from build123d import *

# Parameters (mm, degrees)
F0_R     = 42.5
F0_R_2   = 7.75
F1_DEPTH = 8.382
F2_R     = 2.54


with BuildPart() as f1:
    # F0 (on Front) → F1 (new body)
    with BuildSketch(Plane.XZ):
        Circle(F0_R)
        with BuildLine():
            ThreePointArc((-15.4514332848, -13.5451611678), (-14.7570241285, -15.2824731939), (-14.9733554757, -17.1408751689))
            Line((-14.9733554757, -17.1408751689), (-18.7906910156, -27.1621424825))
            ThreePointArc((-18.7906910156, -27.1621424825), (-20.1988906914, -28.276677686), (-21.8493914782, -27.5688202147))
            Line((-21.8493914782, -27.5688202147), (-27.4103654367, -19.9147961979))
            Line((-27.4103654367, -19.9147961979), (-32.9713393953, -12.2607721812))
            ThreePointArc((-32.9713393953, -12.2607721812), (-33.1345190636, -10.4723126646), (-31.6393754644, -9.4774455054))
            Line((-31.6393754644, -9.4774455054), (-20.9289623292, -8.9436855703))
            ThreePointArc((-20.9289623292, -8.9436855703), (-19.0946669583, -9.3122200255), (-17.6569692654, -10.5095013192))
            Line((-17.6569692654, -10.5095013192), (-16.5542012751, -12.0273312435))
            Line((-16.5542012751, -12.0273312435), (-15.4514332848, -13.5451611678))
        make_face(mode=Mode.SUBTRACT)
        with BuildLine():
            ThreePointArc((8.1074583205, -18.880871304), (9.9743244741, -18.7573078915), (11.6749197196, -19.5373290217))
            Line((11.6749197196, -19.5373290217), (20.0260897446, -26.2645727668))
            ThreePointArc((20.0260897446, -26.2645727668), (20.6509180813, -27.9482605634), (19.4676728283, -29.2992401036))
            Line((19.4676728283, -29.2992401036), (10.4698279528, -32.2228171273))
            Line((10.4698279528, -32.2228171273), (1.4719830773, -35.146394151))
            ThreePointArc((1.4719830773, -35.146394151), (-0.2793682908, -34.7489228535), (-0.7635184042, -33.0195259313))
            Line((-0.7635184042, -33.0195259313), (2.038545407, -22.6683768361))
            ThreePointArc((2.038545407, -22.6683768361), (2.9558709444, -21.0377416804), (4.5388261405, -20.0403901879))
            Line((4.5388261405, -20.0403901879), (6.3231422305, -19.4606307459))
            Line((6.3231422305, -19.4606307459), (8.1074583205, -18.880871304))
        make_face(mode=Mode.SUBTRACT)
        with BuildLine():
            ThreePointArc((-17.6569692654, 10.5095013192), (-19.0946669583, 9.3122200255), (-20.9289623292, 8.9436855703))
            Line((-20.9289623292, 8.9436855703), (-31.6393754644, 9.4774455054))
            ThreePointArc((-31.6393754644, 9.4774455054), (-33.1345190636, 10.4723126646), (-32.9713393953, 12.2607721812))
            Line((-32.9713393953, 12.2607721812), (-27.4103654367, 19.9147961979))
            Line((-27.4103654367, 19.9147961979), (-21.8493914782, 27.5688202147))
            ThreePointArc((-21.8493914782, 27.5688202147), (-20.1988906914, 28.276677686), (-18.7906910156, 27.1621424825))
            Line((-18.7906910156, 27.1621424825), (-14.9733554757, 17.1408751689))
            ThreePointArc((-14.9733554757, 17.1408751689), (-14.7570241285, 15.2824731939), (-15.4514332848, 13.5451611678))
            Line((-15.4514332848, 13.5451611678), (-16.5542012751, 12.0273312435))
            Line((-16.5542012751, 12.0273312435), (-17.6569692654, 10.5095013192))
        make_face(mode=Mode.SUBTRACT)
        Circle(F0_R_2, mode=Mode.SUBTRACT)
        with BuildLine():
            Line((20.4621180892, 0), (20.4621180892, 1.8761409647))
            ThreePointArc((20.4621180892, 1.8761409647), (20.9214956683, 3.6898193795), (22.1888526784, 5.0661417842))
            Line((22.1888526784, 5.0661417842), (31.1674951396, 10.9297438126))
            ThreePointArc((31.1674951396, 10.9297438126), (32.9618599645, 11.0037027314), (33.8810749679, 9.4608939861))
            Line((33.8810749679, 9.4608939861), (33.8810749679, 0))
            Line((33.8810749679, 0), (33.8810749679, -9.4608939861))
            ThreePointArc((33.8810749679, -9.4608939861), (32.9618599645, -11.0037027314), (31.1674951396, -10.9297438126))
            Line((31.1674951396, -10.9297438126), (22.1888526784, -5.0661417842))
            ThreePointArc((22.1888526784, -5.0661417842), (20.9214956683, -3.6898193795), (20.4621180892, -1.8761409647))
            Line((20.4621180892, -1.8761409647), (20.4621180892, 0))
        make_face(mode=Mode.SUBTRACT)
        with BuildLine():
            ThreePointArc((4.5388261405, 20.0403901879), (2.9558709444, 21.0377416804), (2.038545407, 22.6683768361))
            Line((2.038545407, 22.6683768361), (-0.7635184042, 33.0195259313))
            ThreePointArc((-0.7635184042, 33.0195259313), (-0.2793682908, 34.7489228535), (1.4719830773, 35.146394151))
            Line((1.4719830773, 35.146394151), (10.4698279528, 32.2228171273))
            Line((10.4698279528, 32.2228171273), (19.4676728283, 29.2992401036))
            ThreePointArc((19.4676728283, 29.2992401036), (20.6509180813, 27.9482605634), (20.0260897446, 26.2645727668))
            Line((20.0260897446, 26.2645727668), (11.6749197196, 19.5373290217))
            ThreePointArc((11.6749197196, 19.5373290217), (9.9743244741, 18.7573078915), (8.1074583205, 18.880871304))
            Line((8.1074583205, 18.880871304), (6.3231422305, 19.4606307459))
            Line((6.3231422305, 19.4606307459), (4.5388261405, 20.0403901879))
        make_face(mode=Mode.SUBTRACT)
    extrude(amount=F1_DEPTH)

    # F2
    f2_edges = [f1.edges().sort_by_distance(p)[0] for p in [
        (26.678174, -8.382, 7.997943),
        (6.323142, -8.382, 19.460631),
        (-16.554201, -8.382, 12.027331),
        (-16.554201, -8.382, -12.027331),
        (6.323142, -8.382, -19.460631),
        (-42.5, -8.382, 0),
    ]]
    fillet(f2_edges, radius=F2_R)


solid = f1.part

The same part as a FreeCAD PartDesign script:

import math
import FreeCAD as App
import Part
import Sketcher
from FreeCAD import Vector
Q = App.Units.Quantity


def edges_at(feature, points):
    """Names of the edges that pass closest to the given points."""
    edges = feature.Shape.Edges
    near = lambda p: min(range(len(edges)), key=lambda i: edges[i].distToShape(Part.Vertex(*p))[0])
    return sorted({f"Edge{near(p) + 1}" for p in points})

doc = App.newDocument("Part")
params = doc.addObject("Spreadsheet::Sheet", "Params")
for row, (alias, value) in enumerate([
    ("sketch1_radius", "0.15 in"),
    ("pad1_length", "0.33 in"),
    ("fillet_radius", "0.1 in"),
], start=1):
    params.set(f"A{row}", alias)
    params.set(f"B{row}", "=" + value)
    params.setAlias(f"B{row}", alias)

body = doc.addObject("PartDesign::Body", "Body")

sketch1 = body.newObject("Sketcher::SketchObject", "Sketch")
sketch1.AttachmentSupport = (doc.getObject("XZ_Plane"), [""])
sketch1.MapMode = "FlatFace"
sketch1.addGeometry([
    Part.Circle(Vector(0, 0, 0), Vector(0, 0, 1), 42.5),
    Part.LineSegment(Vector(-17.7, -10.5, 0), Vector(-15.5, -13.5, 0)),
    Part.ArcOfCircle(Part.Circle(Vector(-18.5, -15.8, 0), Vector(0, 0, 1), 3.8), math.radians(-21), math.radians(36)),
    Part.LineSegment(Vector(-15, -17.1, 0), Vector(-18.8, -27.2, 0)),
    Part.ArcOfCircle(Part.Circle(Vector(-20.4, -26.5, 0), Vector(0, 0, 1), 1.8), math.radians(-144), math.radians(-21)),
    Part.LineSegment(Vector(-21.8, -27.6, 0), Vector(-27.4, -19.9, 0)),
    Part.LineSegment(Vector(-27.4, -19.9, 0), Vector(-33, -12.3, 0)),
    Part.ArcOfCircle(Part.Circle(Vector(-31.6, -11.2, 0), Vector(0, 0, 1), 1.8), math.radians(93), math.radians(216)),
    Part.LineSegment(Vector(-31.6, -9.5, 0), Vector(-20.9, -8.9, 0)),
    Part.ArcOfCircle(Part.Circle(Vector(-20.7, -12.7, 0), Vector(0, 0, 1), 3.8), math.radians(36), math.radians(93)),
    Part.LineSegment(Vector(6.3, -19.5, 0), Vector(8.1, -18.9, 0)),
    Part.ArcOfCircle(Part.Circle(Vector(9.3, -22.5, 0), Vector(0, 0, 1), 3.8), math.radians(51), math.radians(108)),
    Part.LineSegment(Vector(11.7, -19.5, 0), Vector(20, -26.3, 0)),
    Part.ArcOfCircle(Part.Circle(Vector(18.9, -27.6, 0), Vector(0, 0, 1), 1.8), math.radians(-72), math.radians(51)),
    Part.LineSegment(Vector(19.5, -29.3, 0), Vector(1.5, -35.1, 0)),
    Part.ArcOfCircle(Part.Circle(Vector(0.9, -33.5, 0), Vector(0, 0, 1), 1.8), math.radians(165), math.radians(288)),
    Part.LineSegment(Vector(-0.8, -33, 0), Vector(2, -22.7, 0)),
    Part.ArcOfCircle(Part.Circle(Vector(5.7, -23.7, 0), Vector(0, 0, 1), 3.8), math.radians(108), math.radians(165)),
    Part.LineSegment(Vector(4.5, -20, 0), Vector(6.3, -19.5, 0)),
    Part.Circle(Vector(0, 0, 0), Vector(0, 0, 1), 7.8),
    Part.LineSegment(Vector(-15.5, 13.5, 0), Vector(-17.7, 10.5, 0)),
    Part.ArcOfCircle(Part.Circle(Vector(-20.7, 12.7, 0), Vector(0, 0, 1), 3.8), math.radians(-93), math.radians(-36)),
    Part.LineSegment(Vector(-20.9, 8.9, 0), Vector(-31.6, 9.5, 0)),
    Part.ArcOfCircle(Part.Circle(Vector(-31.6, 11.2, 0), Vector(0, 0, 1), 1.8), math.radians(144), math.radians(267)),
    Part.LineSegment(Vector(-33, 12.3, 0), Vector(-27.4, 19.9, 0)),
    Part.LineSegment(Vector(-27.4, 19.9, 0), Vector(-21.8, 27.6, 0)),
    Part.ArcOfCircle(Part.Circle(Vector(-20.4, 26.5, 0), Vector(0, 0, 1), 1.8), math.radians(21), math.radians(144)),
    Part.LineSegment(Vector(-18.8, 27.2, 0), Vector(-15, 17.1, 0)),
    Part.ArcOfCircle(Part.Circle(Vector(-18.5, 15.8, 0), Vector(0, 0, 1), 3.8), math.radians(-36), math.radians(21)),
    Part.LineSegment(Vector(20.5, -1.9, 0), Vector(20.5, 1.9, 0)),
    Part.ArcOfCircle(Part.Circle(Vector(24.3, 1.9, 0), Vector(0, 0, 1), 3.8), math.radians(123), math.radians(180)),
    Part.LineSegment(Vector(22.2, 5.1, 0), Vector(31.2, 10.9, 0)),
    Part.ArcOfCircle(Part.Circle(Vector(32.1, 9.5, 0), Vector(0, 0, 1), 1.8), math.radians(0), math.radians(123)),
    Part.LineSegment(Vector(33.9, 9.5, 0), Vector(33.9, -9.5, 0)),
    Part.ArcOfCircle(Part.Circle(Vector(32.1, -9.5, 0), Vector(0, 0, 1), 1.8), math.radians(-123), math.radians(0)),
    Part.LineSegment(Vector(31.2, -10.9, 0), Vector(22.2, -5.1, 0)),
    Part.ArcOfCircle(Part.Circle(Vector(24.3, -1.9, 0), Vector(0, 0, 1), 3.8), math.radians(180), math.radians(237)),
    Part.LineSegment(Vector(6.3, 19.5, 0), Vector(4.5, 20, 0)),
    Part.ArcOfCircle(Part.Circle(Vector(5.7, 23.7, 0), Vector(0, 0, 1), 3.8), math.radians(-165), math.radians(-108)),
    Part.LineSegment(Vector(2, 22.7, 0), Vector(-0.8, 33, 0)),
    Part.ArcOfCircle(Part.Circle(Vector(0.9, 33.5, 0), Vector(0, 0, 1), 1.8), math.radians(72), math.radians(195)),
    Part.LineSegment(Vector(1.5, 35.1, 0), Vector(19.5, 29.3, 0)),
    Part.ArcOfCircle(Part.Circle(Vector(18.9, 27.6, 0), Vector(0, 0, 1), 1.8), math.radians(-51), math.radians(72)),
    Part.LineSegment(Vector(20, 26.3, 0), Vector(11.7, 19.5, 0)),
    Part.ArcOfCircle(Part.Circle(Vector(9.3, 22.5, 0), Vector(0, 0, 1), 3.8), math.radians(-108), math.radians(-51)),
    Part.LineSegment(Vector(8.1, 18.9, 0), Vector(6.3, 19.5, 0)),
], False)
sketch1.addConstraint([
    Sketcher.Constraint("Tangent", 1, 2, 2, 2),
    Sketcher.Constraint("Tangent", 2, 1, 3, 1),
    Sketcher.Constraint("Tangent", 3, 2, 4, 2),
    Sketcher.Constraint("Tangent", 4, 1, 5, 1),
    Sketcher.Constraint("Coincident", 5, 2, 6, 1),
    Sketcher.Constraint("Tangent", 6, 2, 7, 2),
    Sketcher.Constraint("Tangent", 7, 1, 8, 1),
    Sketcher.Constraint("Tangent", 8, 2, 9, 2),
    Sketcher.Constraint("Tangent", 9, 1, 1, 1),
    Sketcher.Constraint("Tangent", 10, 2, 11, 2),
    Sketcher.Constraint("Tangent", 11, 1, 12, 1),
    Sketcher.Constraint("Tangent", 12, 2, 13, 2),
    Sketcher.Constraint("Tangent", 13, 1, 14, 1),
    Sketcher.Constraint("Tangent", 14, 2, 15, 2),
    Sketcher.Constraint("Tangent", 15, 1, 16, 1),
    Sketcher.Constraint("Tangent", 16, 2, 17, 2),
    Sketcher.Constraint("Tangent", 17, 1, 18, 1),
    Sketcher.Constraint("Coincident", 18, 2, 10, 1),
    Sketcher.Constraint("Tangent", 20, 2, 21, 2),
    Sketcher.Constraint("Tangent", 21, 1, 22, 1),
    Sketcher.Constraint("Tangent", 22, 2, 23, 2),
    Sketcher.Constraint("Tangent", 23, 1, 24, 1),
    Sketcher.Constraint("Coincident", 24, 2, 25, 1),
    Sketcher.Constraint("Tangent", 25, 2, 26, 2),
    Sketcher.Constraint("Tangent", 26, 1, 27, 1),
    Sketcher.Constraint("Tangent", 27, 2, 28, 2),
    Sketcher.Constraint("Tangent", 28, 1, 20, 1),
    Sketcher.Constraint("Tangent", 29, 2, 30, 2),
    Sketcher.Constraint("Tangent", 30, 1, 31, 1),
    Sketcher.Constraint("Tangent", 31, 2, 32, 2),
    Sketcher.Constraint("Tangent", 32, 1, 33, 1),
    Sketcher.Constraint("Tangent", 33, 2, 34, 2),
    Sketcher.Constraint("Tangent", 34, 1, 35, 1),
    Sketcher.Constraint("Tangent", 35, 2, 36, 2),
    Sketcher.Constraint("Tangent", 36, 1, 29, 1),
    Sketcher.Constraint("Tangent", 37, 2, 38, 2),
    Sketcher.Constraint("Tangent", 38, 1, 39, 1),
    Sketcher.Constraint("Tangent", 39, 2, 40, 2),
    Sketcher.Constraint("Tangent", 40, 1, 41, 1),
    Sketcher.Constraint("Tangent", 41, 2, 42, 2),
    Sketcher.Constraint("Tangent", 42, 1, 43, 1),
    Sketcher.Constraint("Tangent", 43, 2, 44, 2),
    Sketcher.Constraint("Tangent", 44, 1, 45, 1),
    Sketcher.Constraint("Coincident", 45, 2, 37, 1),
    Sketcher.Constraint("Vertical", 29),
    Sketcher.Constraint("Vertical", 33),
    Sketcher.Constraint("Coincident", 0, 3, -1, 1),
    Sketcher.Constraint("Coincident", 19, 3, -1, 1),
    Sketcher.Constraint("Equal", 4, 7),
    Sketcher.Constraint("Equal", 2, 9),
    Sketcher.Constraint("Equal", 9, 11),
    Sketcher.Constraint("Equal", 7, 13),
    Sketcher.Constraint("Equal", 13, 15),
    Sketcher.Constraint("Equal", 11, 17),
    Sketcher.Constraint("Equal", 17, 21),
    Sketcher.Constraint("Equal", 15, 23),
    Sketcher.Constraint("Equal", 23, 26),
    Sketcher.Constraint("Equal", 21, 28),
    Sketcher.Constraint("Equal", 28, 30),
    Sketcher.Constraint("Equal", 26, 32),
    Sketcher.Constraint("Equal", 32, 34),
    Sketcher.Constraint("Equal", 30, 36),
    Sketcher.Constraint("Equal", 36, 38),
    Sketcher.Constraint("Equal", 34, 40),
    Sketcher.Constraint("Equal", 40, 42),
    Sketcher.Constraint("Equal", 38, 44),
    Sketcher.Constraint("Symmetric", 9, 3, 21, 3, -1),
    Sketcher.Constraint("Symmetric", 7, 3, 23, 3, -1),
    Sketcher.Constraint("Symmetric", 4, 3, 26, 3, -1),
    Sketcher.Constraint("Symmetric", 2, 3, 28, 3, -1),
    Sketcher.Constraint("Symmetric", 17, 3, 38, 3, -1),
    Sketcher.Constraint("Symmetric", 15, 3, 40, 3, -1),
    Sketcher.Constraint("Symmetric", 13, 3, 42, 3, -1),
    Sketcher.Constraint("Symmetric", 11, 3, 44, 3, -1),
    Sketcher.Constraint("Symmetric", 5, 2, 24, 2, -1),
    Sketcher.Constraint("Symmetric", 31, 2, 34, 1, -1),
    Sketcher.Constraint("Symmetric", 18, 2, 45, 2, -1),
    Sketcher.Constraint("Parallel", 1, 5),
    Sketcher.Constraint("Parallel", 5, 6),
    Sketcher.Constraint("Parallel", 10, 14),
    Sketcher.Constraint("Parallel", 14, 18),
    Sketcher.Constraint("Equal", 5, 6),
    Sketcher.Constraint("Equal", 3, 8),
    Sketcher.Constraint("Equal", 8, 12),
    Sketcher.Constraint("Equal", 12, 16),
    Sketcher.Constraint("Equal", 10, 18),
    Sketcher.Constraint("Equal", 27, 31),
    Sketcher.Constraint("Radius", 2, Q("0.15 in")),
    Sketcher.Constraint("Angle", 1, Q("-54 deg")),
    Sketcher.Constraint("Angle", 10, Q("18 deg")),
    Sketcher.Constraint("Diameter", 0, 85.0),
    Sketcher.Constraint("Diameter", 19, 15.5),
    Sketcher.Constraint("DistanceY", 11, 3, -1, 1, Q("0.8859999 in")),
    Sketcher.Constraint("Radius", 4, 1.754331),
    Sketcher.Constraint("DistanceY", 29, 1, 29, 2, 3.752282),
    Sketcher.Constraint("DistanceY", 9, 1, -1, 1, 10.509501),
    Sketcher.Constraint("Distance", 1, 3.752282),
    Sketcher.Constraint("Distance", 10, 1.876141),
    Sketcher.Constraint("DistanceY", 33, 2, 33, 1, 18.921788),
    Sketcher.Constraint("DistanceX", 2, 3, -1, 1, 18.533788),
    Sketcher.Constraint("DistanceY", 4, 3, -1, 1, 26.53765),
    Sketcher.Constraint("DistanceX", -1, 1, 17, 3, 5.716181),
    Sketcher.Constraint("DistanceX", -1, 1, 30, 3, 24.272118),
    Sketcher.Constraint("DistanceX", 3, 2, -1, 1, 18.790691),
    Sketcher.Constraint("DistanceX", -1, 1, 11, 1, 11.67492),
])
sketch1.setExpression("Constraints[87]", "Params.sketch1_radius")
pad1 = body.newObject("PartDesign::Pad", "Pad")
pad1.Profile = sketch1
pad1.setExpression("Length", "Params.pad1_length")
doc.recompute()

fillet = body.newObject("PartDesign::Fillet", "Fillet")
fillet.Base = (pad1, edges_at(pad1, [
    (26.678, -8.382, 7.998),
    (5.431, -8.382, 19.751),
    (-16.554, -8.382, 12.027),
    (-16.554, -8.382, -12.027),
    (5.431, -8.382, -19.751),
    (-42.5, -8.382, 0),
]))
fillet.setExpression("Radius", "Params.fillet_radius")

doc.recompute()
